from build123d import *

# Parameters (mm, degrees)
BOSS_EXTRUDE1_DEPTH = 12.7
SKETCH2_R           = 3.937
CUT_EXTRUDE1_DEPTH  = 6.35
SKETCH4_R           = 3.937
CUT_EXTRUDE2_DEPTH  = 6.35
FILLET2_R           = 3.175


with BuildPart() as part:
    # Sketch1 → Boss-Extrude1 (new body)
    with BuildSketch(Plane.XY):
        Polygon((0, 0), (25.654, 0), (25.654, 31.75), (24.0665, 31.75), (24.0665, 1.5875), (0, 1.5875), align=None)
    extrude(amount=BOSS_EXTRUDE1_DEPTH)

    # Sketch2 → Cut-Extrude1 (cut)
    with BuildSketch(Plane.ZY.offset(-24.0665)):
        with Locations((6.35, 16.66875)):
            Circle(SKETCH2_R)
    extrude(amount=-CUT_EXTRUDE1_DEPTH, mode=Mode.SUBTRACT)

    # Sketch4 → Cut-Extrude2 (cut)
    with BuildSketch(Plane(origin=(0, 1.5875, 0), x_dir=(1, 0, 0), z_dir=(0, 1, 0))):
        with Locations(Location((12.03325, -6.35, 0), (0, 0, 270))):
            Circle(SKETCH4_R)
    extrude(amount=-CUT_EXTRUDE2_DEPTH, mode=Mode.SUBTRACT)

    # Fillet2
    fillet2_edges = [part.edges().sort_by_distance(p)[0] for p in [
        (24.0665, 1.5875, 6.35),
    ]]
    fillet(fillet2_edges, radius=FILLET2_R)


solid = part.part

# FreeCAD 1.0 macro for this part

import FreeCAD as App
import Part
import Sketcher
Q = App.Units.Quantity


def edges_at(feature, points):
    """Names of the edges that pass closest to the given points."""
    edges = feature.Shape.Edges
    near = lambda p: min(range(len(edges)), key=lambda i: edges[i].distToShape(Part.Vertex(*p))[0])
    return sorted({f"Edge{near(p) + 1}" for p in points})


def add_polygon(sketch, points):
    """Adds a closed chain of lines whose ends are joined by coincident constraints."""
    first, n = sketch.GeometryCount, len(points)
    for a, b in zip(points, points[1:] + points[:1]):
        sketch.addGeometry(Part.LineSegment(App.Vector(*a, 0), App.Vector(*b, 0)), False)
    for i in range(n):
        sketch.addConstraint(Sketcher.Constraint("Coincident", first + i, 2, first + (i + 1) % n, 1))

doc = App.newDocument("Part")
body = doc.addObject("PartDesign::Body", "Body")

sketch1 = doc.addObject("Sketcher::SketchObject", "Sketch")
body.addObject(sketch1)
sketch1.AttachmentSupport = (doc.XY_Plane, [""])
sketch1.MapMode = "FlatFace"
add_polygon(sketch1, [(0, 0), (25.7, 0), (25.7, 31.8), (24.1, 31.8), (24.1, 1.6), (0, 1.6)])
sketch1.addConstraint([
    Sketcher.Constraint("Horizontal", 0),
    Sketcher.Constraint("Vertical", 1),
    Sketcher.Constraint("Horizontal", 2),
    Sketcher.Constraint("Vertical", 3),
    Sketcher.Constraint("Horizontal", 4),
    Sketcher.Constraint("Vertical", 5),
    Sketcher.Constraint("Coincident", 5, 2, -1, 1),
    Sketcher.Constraint("Equal", 2, 5),
    Sketcher.Constraint("DistanceX", 0, 1, 0, 2, Q("1.01 in")),
    Sketcher.Constraint("DistanceY", 1, 1, 1, 2, Q("1.25 in")),
    Sketcher.Constraint("DistanceX", 2, 2, 2, 1, Q("0.0625 in")),
])
pad1 = doc.addObject("PartDesign::Pad", "Pad")
body.addObject(pad1)
pad1.Profile = sketch1
pad1.Length = Q("0.5 in")

sketch2 = doc.addObject("Sketcher::SketchObject", "Sketch001")
body.addObject(sketch2)
sketch2.AttachmentSupport = (doc.YZ_Plane, [""])
sketch2.MapMode = "FlatFace"
sketch2.AttachmentOffset = App.Placement(App.Vector(0, 0, 0.9475 * 25.4), App.Rotation())
sketch2.addGeometry(Part.Circle(App.Vector(16.7, 6.3, 0), App.Vector(0, 0, 1), 3.9), False)
sketch2.addConstraint([
    Sketcher.Constraint("Diameter", 0, Q("0.31 in")),
    Sketcher.Constraint("DistanceY", -1, 1, 0, 3, Q("0.25 in")),
    Sketcher.Constraint("DistanceX", -1, 1, 0, 3, Q("0.65625 in")),
])
pocket1 = doc.addObject("PartDesign::Pocket", "Pocket")
body.addObject(pocket1)
pocket1.Profile = sketch2
pocket1.Length = Q("0.25 in")
pocket1.Reversed = True

sketch3 = doc.addObject("Sketcher::SketchObject", "Sketch002")
body.addObject(sketch3)
sketch3.AttachmentSupport = (doc.XZ_Plane, [""])
sketch3.MapMode = "FlatFace"
sketch3.AttachmentOffset = App.Placement(App.Vector(0, 0, -0.0625 * 25.4), App.Rotation())
sketch3.addGeometry(Part.Circle(App.Vector(12, 6.3, 0), App.Vector(0, 0, 1), 3.9), False)
sketch3.addConstraint([
    Sketcher.Constraint("Diameter", 0, Q("0.31 in")),
    Sketcher.Constraint("DistanceY", -1, 1, 0, 3, Q("0.25 in")),
    Sketcher.Constraint("DistanceX", -1, 1, 0, 3, 12.03325),
])
pocket2 = doc.addObject("PartDesign::Pocket", "Pocket001")
body.addObject(pocket2)
pocket2.Profile = sketch3
pocket2.Length = Q("0.25 in")
pocket2.Reversed = True
doc.recompute()

fillet = doc.addObject("PartDesign::Fillet", "Fillet")
body.addObject(fillet)
fillet.Base = (pocket2, edges_at(pocket2, [(24.067, 1.587, 6.35)]))
fillet.Radius = Q("0.125 in")

doc.recompute()
